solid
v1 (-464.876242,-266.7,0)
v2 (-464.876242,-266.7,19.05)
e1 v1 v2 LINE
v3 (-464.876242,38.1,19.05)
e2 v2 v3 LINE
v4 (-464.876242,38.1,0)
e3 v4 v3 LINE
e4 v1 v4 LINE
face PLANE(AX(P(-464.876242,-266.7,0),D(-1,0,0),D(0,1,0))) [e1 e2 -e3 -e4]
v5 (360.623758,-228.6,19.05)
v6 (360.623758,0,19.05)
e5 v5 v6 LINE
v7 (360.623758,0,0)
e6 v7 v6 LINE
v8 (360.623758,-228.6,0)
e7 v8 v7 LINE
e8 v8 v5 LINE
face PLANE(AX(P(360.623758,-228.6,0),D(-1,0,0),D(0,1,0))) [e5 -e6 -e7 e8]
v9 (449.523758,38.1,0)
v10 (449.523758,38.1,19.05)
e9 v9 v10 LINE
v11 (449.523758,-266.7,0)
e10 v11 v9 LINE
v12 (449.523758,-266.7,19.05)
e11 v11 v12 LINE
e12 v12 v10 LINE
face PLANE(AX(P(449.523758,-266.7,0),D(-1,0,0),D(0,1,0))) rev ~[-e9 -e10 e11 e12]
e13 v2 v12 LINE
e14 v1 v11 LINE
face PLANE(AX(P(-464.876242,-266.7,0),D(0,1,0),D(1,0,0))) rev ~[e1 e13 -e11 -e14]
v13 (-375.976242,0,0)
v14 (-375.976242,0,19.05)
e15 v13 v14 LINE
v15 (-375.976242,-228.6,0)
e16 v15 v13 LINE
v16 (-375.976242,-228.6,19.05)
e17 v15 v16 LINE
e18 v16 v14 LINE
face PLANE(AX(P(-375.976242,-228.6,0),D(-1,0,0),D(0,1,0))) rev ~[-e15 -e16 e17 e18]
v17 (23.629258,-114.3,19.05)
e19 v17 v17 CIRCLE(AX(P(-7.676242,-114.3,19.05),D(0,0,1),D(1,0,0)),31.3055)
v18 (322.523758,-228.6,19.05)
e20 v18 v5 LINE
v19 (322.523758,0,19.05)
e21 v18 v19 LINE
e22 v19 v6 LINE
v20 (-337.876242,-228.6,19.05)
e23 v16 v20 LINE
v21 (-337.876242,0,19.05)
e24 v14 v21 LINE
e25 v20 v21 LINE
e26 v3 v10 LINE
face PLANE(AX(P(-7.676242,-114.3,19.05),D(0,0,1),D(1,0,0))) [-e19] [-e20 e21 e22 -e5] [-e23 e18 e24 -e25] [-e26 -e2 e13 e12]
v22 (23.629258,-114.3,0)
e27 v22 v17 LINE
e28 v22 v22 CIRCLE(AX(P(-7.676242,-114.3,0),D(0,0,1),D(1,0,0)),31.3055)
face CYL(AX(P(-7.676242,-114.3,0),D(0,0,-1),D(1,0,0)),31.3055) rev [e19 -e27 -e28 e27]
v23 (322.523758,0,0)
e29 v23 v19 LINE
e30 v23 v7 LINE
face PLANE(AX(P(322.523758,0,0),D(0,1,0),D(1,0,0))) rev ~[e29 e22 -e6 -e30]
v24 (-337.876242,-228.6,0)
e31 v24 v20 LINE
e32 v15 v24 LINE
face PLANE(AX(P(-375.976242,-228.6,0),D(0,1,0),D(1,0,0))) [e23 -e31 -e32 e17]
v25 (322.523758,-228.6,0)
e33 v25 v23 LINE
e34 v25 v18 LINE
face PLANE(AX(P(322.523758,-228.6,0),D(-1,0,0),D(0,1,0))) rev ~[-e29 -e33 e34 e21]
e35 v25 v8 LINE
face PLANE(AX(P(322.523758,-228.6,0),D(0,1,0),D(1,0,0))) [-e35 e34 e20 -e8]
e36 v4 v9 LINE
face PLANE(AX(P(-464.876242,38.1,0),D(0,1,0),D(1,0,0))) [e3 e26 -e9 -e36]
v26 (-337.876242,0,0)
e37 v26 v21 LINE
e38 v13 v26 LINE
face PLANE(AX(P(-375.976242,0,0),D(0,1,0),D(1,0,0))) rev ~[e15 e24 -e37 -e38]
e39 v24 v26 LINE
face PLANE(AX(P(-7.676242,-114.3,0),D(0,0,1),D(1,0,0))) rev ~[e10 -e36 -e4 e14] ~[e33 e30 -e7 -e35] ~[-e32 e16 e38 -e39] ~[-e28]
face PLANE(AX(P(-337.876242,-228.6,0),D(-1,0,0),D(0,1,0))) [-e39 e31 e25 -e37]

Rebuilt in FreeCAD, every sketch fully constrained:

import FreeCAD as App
import Part
import Sketcher

V = App.Vector
Q = App.Units.Quantity


def add_polygon(sketch, points):
    """Adds a closed chain of lines whose ends are joined by coincident constraints."""
    first, n = sketch.GeometryCount, len(points)
    for a, b in zip(points, points[1:] + points[:1]):
        sketch.addGeometry(Part.LineSegment(App.Vector(*a, 0), App.Vector(*b, 0)), False)
    for i in range(n):
        sketch.addConstraint(Sketcher.Constraint("Coincident", first + i, 2, first + (i + 1) % n, 1))

doc = App.newDocument("Part")
body = doc.addObject("PartDesign::Body", "Body")

sketch1 = body.newObject("Sketcher::SketchObject", "Sketch")
sketch1.AttachmentSupport = (doc.getObject("XY_Plane"), [""])
sketch1.MapMode = "FlatFace"
add_polygon(sketch1, [(-464.876242, 38.1), (-464.876242, -266.7), (449.523758, -266.7), (449.523758, 38.1)])
add_polygon(sketch1, [(-337.876242, -228.6), (-375.976242, -228.6), (-375.976242, 0), (-337.876242, 0)])
sketch1.addGeometry(Part.Circle(V(-7.676242, -114.3, 0), V(0, 0, 1), 31.3055), False)
add_polygon(sketch1, [(360.623758, -228.6), (322.523758, -228.6), (322.523758, 0), (360.623758, 0)])
sketch1.addConstraint([
    Sketcher.Constraint("Vertical", 0),
    Sketcher.Constraint("Horizontal", 1),
    Sketcher.Constraint("Vertical", 2),
    Sketcher.Constraint("Horizontal", 3),
    Sketcher.Constraint("Horizontal", 4),
    Sketcher.Constraint("Vertical", 5),
    Sketcher.Constraint("Horizontal", 6),
    Sketcher.Constraint("Vertical", 7),
    Sketcher.Constraint("Horizontal", 9),
    Sketcher.Constraint("Vertical", 10),
    Sketcher.Constraint("Horizontal", 11),
    Sketcher.Constraint("Vertical", 12),
    Sketcher.Constraint("PointOnObject", 5, 2, -1),
    Sketcher.Constraint("PointOnObject", 10, 2, -1),
    Sketcher.Constraint("Horizontal", 7, 2, 9, 2),
    Sketcher.Constraint("Equal", 6, 9),
    Sketcher.Constraint("DistanceX", 1, 1, 1, 2, Q("36 in")),
    Sketcher.Constraint("DistanceY", 0, 2, 0, 1, Q("12 in")),
    Sketcher.Constraint("DistanceY", 5, 1, 5, 2, Q("9 in")),
    Sketcher.Constraint("Diameter", 8, Q("2.465 in")),
    Sketcher.Constraint("DistanceX", 4, 2, 4, 1, Q("1.5 in")),
    Sketcher.Constraint("DistanceX", 0, 2, 8, 3, Q("18 in")),
    Sketcher.Constraint("DistanceY", 0, 2, 8, 3, Q("6 in")),
    Sketcher.Constraint("DistanceX", 3, 2, 6, 2, Q("5 in")),
    Sketcher.Constraint("DistanceX", 9, 2, 1, 2, Q("5 in")),
    Sketcher.Constraint("DistanceY", 8, 3, -1, 1, Q("4.5 in")),
    Sketcher.Constraint("DistanceX", 0, 2, -1, 1, Q("464.876242 mm")),
])
pad1 = body.newObject("PartDesign::Pad", "Pad")
pad1.Profile = sketch1
pad1.Length = Q("0.75 in")

doc.recompute()
